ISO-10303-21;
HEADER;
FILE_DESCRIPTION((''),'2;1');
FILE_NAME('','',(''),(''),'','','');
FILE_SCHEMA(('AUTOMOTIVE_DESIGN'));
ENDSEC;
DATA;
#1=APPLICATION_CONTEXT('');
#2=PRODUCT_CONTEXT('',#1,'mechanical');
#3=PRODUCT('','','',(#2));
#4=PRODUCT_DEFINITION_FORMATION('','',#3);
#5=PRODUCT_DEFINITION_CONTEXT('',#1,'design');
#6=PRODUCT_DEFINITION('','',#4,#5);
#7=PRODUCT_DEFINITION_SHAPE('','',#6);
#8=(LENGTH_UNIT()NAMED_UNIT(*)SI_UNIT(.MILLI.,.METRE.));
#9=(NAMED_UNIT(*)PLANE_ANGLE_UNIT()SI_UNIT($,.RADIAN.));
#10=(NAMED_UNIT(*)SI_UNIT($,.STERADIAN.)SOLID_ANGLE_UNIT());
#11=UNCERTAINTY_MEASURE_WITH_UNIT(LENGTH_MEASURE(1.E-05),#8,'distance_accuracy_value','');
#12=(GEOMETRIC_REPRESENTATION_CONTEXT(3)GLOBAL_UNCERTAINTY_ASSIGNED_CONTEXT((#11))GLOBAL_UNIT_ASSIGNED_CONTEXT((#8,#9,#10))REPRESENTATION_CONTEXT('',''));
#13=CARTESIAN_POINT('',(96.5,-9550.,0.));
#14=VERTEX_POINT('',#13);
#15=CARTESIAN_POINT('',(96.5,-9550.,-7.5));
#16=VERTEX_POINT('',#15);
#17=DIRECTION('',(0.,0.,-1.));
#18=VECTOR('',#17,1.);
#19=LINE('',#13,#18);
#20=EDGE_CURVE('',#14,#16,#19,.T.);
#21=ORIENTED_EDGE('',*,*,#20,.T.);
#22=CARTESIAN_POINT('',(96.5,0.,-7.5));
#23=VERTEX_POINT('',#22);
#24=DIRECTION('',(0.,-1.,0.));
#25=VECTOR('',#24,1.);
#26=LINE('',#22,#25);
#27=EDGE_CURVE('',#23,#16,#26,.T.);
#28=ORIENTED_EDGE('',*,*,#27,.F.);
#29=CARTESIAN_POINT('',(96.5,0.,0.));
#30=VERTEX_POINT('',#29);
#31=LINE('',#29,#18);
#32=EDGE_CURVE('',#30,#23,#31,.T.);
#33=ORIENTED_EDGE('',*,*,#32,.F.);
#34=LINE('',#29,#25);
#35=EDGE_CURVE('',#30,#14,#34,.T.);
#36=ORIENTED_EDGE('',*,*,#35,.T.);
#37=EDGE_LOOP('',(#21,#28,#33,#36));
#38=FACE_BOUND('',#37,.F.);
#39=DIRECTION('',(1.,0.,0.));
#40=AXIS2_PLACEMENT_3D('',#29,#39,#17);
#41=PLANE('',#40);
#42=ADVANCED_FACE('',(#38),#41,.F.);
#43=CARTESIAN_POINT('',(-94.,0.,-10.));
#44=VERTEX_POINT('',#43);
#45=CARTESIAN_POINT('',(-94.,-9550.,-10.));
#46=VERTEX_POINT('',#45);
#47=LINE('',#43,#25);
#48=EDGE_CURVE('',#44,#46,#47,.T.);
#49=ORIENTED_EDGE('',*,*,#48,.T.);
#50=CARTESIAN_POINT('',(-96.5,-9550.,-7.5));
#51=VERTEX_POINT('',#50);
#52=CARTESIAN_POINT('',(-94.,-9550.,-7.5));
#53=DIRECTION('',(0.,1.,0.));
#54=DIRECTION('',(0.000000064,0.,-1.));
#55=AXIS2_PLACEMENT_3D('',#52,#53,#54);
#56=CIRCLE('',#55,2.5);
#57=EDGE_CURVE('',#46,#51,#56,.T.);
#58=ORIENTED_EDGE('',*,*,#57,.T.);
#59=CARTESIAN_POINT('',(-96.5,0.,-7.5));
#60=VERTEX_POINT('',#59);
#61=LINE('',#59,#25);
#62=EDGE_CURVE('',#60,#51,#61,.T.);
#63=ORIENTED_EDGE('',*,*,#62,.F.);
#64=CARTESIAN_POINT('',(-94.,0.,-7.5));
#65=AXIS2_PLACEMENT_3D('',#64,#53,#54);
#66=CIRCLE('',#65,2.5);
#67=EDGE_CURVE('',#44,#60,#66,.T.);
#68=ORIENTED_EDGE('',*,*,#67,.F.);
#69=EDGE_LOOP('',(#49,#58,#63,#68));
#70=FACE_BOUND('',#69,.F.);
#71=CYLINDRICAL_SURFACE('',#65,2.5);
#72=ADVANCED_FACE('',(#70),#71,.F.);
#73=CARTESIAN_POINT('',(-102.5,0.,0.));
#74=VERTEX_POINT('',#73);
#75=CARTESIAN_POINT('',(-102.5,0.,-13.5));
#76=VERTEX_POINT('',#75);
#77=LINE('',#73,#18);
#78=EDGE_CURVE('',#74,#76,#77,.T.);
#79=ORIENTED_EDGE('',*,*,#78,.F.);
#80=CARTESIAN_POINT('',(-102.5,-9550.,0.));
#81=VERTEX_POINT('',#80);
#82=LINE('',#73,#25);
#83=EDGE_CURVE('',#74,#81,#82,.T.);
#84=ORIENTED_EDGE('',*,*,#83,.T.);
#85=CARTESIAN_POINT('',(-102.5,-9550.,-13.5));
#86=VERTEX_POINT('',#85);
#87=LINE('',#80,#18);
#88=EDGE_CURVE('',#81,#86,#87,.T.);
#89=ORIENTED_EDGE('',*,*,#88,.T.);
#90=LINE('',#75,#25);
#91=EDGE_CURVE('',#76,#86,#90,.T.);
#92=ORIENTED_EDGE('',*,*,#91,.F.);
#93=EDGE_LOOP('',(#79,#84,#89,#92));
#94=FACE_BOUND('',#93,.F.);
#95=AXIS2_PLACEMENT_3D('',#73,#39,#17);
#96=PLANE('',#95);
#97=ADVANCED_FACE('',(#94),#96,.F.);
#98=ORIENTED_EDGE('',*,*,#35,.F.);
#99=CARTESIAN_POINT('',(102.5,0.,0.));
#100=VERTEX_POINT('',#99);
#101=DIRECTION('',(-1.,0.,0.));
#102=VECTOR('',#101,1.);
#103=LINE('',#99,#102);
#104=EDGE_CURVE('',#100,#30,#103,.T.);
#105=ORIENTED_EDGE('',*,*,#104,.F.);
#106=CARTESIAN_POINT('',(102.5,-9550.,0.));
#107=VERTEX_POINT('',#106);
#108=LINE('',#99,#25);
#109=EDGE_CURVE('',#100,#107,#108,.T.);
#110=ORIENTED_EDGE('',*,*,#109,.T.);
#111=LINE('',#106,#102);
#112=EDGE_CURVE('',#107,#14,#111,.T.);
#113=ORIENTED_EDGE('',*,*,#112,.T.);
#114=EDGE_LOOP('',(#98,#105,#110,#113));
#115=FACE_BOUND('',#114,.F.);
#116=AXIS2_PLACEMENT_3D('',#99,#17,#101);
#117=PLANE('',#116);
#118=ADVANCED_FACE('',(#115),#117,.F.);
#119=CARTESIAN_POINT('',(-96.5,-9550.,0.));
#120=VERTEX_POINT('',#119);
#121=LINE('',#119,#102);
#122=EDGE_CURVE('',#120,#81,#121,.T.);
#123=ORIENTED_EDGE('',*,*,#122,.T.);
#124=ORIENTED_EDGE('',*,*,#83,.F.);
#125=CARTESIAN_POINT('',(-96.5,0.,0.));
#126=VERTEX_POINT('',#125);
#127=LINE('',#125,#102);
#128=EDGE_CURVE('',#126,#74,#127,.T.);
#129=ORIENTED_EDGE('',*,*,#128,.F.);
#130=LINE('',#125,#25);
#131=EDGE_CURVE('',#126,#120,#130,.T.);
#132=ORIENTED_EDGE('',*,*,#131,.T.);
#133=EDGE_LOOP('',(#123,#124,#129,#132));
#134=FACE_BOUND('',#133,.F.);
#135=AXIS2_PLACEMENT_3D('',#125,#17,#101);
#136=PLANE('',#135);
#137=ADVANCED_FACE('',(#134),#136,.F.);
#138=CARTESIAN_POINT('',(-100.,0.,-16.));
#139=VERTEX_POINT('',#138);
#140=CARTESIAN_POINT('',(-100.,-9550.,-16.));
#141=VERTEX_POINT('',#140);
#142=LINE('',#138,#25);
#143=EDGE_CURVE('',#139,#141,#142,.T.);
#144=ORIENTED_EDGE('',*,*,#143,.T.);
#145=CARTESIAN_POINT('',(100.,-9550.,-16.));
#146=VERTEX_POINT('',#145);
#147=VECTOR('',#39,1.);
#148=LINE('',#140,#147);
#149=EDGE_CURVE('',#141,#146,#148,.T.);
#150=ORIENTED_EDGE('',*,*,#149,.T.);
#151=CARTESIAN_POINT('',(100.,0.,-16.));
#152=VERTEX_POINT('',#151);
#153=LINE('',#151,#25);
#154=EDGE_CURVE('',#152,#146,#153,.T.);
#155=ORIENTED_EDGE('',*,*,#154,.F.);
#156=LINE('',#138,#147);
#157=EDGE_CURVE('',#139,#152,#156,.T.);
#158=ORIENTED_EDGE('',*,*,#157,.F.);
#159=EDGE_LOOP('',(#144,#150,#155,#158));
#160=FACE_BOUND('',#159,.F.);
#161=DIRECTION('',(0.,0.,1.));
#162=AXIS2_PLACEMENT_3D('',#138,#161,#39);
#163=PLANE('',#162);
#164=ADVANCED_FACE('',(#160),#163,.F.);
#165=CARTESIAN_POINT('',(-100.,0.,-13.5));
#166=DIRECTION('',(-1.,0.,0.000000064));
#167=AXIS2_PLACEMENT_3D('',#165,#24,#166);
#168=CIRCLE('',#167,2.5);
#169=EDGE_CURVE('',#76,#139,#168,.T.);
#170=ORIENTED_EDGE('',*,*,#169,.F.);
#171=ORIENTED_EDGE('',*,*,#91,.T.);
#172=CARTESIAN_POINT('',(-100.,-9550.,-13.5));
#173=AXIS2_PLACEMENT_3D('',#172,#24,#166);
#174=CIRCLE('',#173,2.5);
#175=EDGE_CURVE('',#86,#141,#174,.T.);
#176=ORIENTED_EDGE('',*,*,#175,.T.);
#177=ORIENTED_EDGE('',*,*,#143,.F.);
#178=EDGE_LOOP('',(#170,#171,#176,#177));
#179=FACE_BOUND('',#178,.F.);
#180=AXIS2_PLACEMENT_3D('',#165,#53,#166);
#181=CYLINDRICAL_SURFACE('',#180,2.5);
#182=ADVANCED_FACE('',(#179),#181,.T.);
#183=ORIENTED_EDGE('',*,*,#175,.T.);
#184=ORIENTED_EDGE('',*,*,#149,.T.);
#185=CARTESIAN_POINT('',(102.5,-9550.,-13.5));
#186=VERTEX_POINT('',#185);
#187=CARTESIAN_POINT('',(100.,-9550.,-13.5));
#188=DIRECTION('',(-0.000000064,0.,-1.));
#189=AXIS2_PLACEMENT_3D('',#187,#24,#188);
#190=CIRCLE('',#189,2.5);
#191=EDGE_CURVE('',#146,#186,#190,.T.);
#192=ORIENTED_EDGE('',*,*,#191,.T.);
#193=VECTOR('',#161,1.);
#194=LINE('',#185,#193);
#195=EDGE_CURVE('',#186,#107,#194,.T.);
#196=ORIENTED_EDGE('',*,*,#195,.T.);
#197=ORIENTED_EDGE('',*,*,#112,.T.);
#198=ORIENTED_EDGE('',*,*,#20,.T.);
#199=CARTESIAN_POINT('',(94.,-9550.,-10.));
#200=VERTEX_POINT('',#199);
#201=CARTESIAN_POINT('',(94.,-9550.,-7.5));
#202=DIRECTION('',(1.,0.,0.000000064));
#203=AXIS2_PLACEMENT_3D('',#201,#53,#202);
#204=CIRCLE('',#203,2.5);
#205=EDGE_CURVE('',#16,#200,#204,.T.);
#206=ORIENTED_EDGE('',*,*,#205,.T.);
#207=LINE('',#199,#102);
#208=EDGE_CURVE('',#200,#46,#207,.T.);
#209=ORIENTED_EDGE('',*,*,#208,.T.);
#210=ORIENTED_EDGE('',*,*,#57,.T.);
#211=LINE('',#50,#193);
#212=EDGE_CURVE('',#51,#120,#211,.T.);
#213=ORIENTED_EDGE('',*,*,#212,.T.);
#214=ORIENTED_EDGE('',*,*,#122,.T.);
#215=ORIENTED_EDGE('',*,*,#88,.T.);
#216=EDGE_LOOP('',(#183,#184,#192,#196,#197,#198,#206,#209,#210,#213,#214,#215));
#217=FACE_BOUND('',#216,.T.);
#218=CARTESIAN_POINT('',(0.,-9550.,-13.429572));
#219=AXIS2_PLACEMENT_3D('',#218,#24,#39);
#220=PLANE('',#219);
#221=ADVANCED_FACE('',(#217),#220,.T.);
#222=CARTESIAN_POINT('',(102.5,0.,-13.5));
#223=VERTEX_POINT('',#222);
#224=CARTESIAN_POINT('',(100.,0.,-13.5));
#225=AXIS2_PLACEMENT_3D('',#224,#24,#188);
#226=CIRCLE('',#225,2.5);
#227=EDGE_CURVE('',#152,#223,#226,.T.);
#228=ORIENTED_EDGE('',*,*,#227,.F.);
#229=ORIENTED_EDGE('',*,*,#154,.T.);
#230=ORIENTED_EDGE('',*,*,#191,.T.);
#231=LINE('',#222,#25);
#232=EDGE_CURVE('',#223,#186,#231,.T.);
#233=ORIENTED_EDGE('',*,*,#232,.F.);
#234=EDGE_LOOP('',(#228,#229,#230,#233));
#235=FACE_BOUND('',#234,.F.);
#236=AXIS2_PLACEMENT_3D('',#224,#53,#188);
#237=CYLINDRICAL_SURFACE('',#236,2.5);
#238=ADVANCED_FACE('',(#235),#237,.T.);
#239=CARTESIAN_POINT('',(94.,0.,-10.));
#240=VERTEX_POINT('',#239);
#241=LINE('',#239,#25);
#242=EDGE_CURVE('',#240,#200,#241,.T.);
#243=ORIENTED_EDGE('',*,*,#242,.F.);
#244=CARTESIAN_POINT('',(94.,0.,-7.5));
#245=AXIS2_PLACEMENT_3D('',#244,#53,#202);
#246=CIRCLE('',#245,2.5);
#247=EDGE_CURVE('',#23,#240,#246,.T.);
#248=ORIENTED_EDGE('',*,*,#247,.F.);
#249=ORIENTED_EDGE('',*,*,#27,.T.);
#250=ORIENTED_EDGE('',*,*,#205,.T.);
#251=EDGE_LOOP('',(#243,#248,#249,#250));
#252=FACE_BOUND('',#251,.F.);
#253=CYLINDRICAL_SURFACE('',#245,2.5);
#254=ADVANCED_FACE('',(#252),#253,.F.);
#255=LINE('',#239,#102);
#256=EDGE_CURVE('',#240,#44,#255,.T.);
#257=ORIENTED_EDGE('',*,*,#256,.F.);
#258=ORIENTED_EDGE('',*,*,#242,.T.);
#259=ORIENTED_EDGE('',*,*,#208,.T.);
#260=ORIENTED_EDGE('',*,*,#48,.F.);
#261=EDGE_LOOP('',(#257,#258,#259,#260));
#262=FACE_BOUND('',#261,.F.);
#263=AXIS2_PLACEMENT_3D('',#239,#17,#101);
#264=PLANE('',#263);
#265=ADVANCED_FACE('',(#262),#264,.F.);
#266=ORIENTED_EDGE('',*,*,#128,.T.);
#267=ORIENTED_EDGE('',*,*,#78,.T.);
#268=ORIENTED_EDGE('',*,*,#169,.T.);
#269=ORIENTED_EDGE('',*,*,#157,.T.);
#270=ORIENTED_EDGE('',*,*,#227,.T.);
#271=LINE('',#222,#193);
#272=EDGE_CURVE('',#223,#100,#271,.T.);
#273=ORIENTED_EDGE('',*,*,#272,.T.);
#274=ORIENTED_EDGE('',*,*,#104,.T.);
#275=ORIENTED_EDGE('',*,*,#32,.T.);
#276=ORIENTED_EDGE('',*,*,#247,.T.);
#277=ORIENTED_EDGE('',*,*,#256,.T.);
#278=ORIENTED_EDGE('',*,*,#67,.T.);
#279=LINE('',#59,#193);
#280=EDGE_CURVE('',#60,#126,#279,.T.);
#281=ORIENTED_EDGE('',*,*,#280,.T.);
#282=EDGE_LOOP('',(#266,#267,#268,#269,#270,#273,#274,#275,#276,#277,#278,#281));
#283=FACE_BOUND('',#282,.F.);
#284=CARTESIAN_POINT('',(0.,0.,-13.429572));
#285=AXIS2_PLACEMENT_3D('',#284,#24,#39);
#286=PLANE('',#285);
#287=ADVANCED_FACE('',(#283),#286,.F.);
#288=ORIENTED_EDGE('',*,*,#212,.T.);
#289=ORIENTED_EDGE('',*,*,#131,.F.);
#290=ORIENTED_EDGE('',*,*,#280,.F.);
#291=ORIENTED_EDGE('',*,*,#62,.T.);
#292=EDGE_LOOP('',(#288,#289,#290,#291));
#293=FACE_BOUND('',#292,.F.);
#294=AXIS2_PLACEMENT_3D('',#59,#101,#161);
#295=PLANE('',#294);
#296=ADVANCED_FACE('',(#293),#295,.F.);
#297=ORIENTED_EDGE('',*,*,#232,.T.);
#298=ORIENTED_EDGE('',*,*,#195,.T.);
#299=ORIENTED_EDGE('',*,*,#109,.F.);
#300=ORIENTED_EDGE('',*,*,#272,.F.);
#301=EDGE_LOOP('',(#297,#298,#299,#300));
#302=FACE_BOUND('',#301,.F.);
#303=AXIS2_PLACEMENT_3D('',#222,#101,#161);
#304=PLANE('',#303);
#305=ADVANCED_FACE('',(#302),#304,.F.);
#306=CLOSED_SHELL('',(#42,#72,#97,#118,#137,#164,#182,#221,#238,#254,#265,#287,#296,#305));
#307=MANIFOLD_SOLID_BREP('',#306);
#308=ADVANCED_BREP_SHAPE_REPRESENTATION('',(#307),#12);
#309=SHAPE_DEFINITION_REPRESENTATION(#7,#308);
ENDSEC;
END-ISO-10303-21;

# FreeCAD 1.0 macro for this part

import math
import FreeCAD as App
import Part
import Sketcher
from FreeCAD import Vector
Q = App.Units.Quantity

doc = App.newDocument("Part")
params = doc.addObject("Spreadsheet::Sheet", "Params")
for row, (alias, value) in enumerate([
    ("sketch1_radius", "2.5 mm"),
    ("sketch1_width", "200 mm"),
    ("sketch1_width2", "6 mm"),
    ("sketch1_height", "13.5 mm"),
    ("sketch1_height2", "7.5 mm"),
    ("pad1_length", "9550 mm"),
], start=1):
    params.set(f"A{row}", alias)
    params.set(f"B{row}", "=" + value)
    params.setAlias(f"B{row}", alias)

body = doc.addObject("PartDesign::Body", "Body")

# Sketch on XZ plane
sketch1 = body.newObject("Sketcher::SketchObject", "Sketch")
sketch1.AttachmentSupport = (doc.getObject("XZ_Plane"), [""])
sketch1.MapMode = "FlatFace"
sketch1.addGeometry([
    Part.LineSegment(Vector(-100, -16, 0), Vector(100, -16, 0)),  # 0
    Part.ArcOfCircle(Part.Circle(Vector(100, -13.5, 0), Vector(0, 0, 1), 2.5), math.radians(-90.000004), math.radians(0.000004)),  # 1
    Part.LineSegment(Vector(102.5, -13.5, 0), Vector(102.5, 0, 0)),  # 2
    Part.LineSegment(Vector(102.5, 0, 0), Vector(96.5, 0, 0)),  # 3
    Part.LineSegment(Vector(96.5, 0, 0), Vector(96.5, -7.5, 0)),  # 4
    Part.ArcOfCircle(Part.Circle(Vector(94, -7.5, 0), Vector(0, 0, 1), 2.5), math.radians(-90.000004), math.radians(0.000004)),  # 5
    Part.LineSegment(Vector(94, -10, 0), Vector(-94, -10, 0)),  # 6
    Part.ArcOfCircle(Part.Circle(Vector(-94, -7.5, 0), Vector(0, 0, 1), 2.5), math.radians(179.999996), math.radians(270.000004)),  # 7
    Part.LineSegment(Vector(-96.5, -7.5, 0), Vector(-96.5, 0, 0)),  # 8
    Part.LineSegment(Vector(-96.5, 0, 0), Vector(-102.5, 0, 0)),  # 9
    Part.LineSegment(Vector(-102.5, 0, 0), Vector(-102.5, -13.5, 0)),  # 10
    Part.ArcOfCircle(Part.Circle(Vector(-100, -13.5, 0), Vector(0, 0, 1), 2.5), math.radians(179.999996), math.radians(270.000004)),  # 11
], False)
sketch1.addConstraint([
    Sketcher.Constraint("Tangent", 0, 2, 1, 1),
    Sketcher.Constraint("Tangent", 1, 2, 2, 1),
    Sketcher.Constraint("Coincident", 2, 2, 3, 1),
    Sketcher.Constraint("Coincident", 3, 2, 4, 1),
    Sketcher.Constraint("Tangent", 4, 2, 5, 2),
    Sketcher.Constraint("Tangent", 5, 1, 6, 1),
    Sketcher.Constraint("Tangent", 6, 2, 7, 2),
    Sketcher.Constraint("Tangent", 7, 1, 8, 1),
    Sketcher.Constraint("Coincident", 8, 2, 9, 1),
    Sketcher.Constraint("Coincident", 9, 2, 10, 1),
    Sketcher.Constraint("Tangent", 10, 2, 11, 1),
    Sketcher.Constraint("Tangent", 11, 2, 0, 1),
    Sketcher.Constraint("Horizontal", 0),
    Sketcher.Constraint("Vertical", 2),
    Sketcher.Constraint("Horizontal", 3),
    Sketcher.Constraint("Vertical", 4),
    Sketcher.Constraint("Horizontal", 6),
    Sketcher.Constraint("Vertical", 8),
    Sketcher.Constraint("Horizontal", 9),
    Sketcher.Constraint("Vertical", 10),
    Sketcher.Constraint("Equal", 1, 5),
    Sketcher.Constraint("Equal", 5, 7),
    Sketcher.Constraint("Equal", 7, 11),
    Sketcher.Constraint("Symmetric", 3, 2, 8, 2, -1, 1),
    Sketcher.Constraint("Symmetric", 2, 2, 9, 2, -2),
    Sketcher.Constraint("Radius", 1, Q("2.5 mm")),
    Sketcher.Constraint("DistanceX", 0, 1, 0, 2, Q("200 mm")),
    Sketcher.Constraint("DistanceX", 3, 2, 3, 1, Q("6 mm")),
    Sketcher.Constraint("DistanceY", 2, 1, 2, 2, Q("13.5 mm")),
    Sketcher.Constraint("DistanceY", 4, 2, 4, 1, Q("7.5 mm")),
])
sketch1.setExpression("Constraints[25]", "Params.sketch1_radius")
sketch1.setExpression("Constraints[26]", "Params.sketch1_width")
sketch1.setExpression("Constraints[27]", "Params.sketch1_width2")
sketch1.setExpression("Constraints[28]", "Params.sketch1_height")
sketch1.setExpression("Constraints[29]", "Params.sketch1_height2")
pad1 = body.newObject("PartDesign::Pad", "Pad")
pad1.Profile = sketch1
pad1.setExpression("Length", "Params.pad1_length")

doc.recompute()
